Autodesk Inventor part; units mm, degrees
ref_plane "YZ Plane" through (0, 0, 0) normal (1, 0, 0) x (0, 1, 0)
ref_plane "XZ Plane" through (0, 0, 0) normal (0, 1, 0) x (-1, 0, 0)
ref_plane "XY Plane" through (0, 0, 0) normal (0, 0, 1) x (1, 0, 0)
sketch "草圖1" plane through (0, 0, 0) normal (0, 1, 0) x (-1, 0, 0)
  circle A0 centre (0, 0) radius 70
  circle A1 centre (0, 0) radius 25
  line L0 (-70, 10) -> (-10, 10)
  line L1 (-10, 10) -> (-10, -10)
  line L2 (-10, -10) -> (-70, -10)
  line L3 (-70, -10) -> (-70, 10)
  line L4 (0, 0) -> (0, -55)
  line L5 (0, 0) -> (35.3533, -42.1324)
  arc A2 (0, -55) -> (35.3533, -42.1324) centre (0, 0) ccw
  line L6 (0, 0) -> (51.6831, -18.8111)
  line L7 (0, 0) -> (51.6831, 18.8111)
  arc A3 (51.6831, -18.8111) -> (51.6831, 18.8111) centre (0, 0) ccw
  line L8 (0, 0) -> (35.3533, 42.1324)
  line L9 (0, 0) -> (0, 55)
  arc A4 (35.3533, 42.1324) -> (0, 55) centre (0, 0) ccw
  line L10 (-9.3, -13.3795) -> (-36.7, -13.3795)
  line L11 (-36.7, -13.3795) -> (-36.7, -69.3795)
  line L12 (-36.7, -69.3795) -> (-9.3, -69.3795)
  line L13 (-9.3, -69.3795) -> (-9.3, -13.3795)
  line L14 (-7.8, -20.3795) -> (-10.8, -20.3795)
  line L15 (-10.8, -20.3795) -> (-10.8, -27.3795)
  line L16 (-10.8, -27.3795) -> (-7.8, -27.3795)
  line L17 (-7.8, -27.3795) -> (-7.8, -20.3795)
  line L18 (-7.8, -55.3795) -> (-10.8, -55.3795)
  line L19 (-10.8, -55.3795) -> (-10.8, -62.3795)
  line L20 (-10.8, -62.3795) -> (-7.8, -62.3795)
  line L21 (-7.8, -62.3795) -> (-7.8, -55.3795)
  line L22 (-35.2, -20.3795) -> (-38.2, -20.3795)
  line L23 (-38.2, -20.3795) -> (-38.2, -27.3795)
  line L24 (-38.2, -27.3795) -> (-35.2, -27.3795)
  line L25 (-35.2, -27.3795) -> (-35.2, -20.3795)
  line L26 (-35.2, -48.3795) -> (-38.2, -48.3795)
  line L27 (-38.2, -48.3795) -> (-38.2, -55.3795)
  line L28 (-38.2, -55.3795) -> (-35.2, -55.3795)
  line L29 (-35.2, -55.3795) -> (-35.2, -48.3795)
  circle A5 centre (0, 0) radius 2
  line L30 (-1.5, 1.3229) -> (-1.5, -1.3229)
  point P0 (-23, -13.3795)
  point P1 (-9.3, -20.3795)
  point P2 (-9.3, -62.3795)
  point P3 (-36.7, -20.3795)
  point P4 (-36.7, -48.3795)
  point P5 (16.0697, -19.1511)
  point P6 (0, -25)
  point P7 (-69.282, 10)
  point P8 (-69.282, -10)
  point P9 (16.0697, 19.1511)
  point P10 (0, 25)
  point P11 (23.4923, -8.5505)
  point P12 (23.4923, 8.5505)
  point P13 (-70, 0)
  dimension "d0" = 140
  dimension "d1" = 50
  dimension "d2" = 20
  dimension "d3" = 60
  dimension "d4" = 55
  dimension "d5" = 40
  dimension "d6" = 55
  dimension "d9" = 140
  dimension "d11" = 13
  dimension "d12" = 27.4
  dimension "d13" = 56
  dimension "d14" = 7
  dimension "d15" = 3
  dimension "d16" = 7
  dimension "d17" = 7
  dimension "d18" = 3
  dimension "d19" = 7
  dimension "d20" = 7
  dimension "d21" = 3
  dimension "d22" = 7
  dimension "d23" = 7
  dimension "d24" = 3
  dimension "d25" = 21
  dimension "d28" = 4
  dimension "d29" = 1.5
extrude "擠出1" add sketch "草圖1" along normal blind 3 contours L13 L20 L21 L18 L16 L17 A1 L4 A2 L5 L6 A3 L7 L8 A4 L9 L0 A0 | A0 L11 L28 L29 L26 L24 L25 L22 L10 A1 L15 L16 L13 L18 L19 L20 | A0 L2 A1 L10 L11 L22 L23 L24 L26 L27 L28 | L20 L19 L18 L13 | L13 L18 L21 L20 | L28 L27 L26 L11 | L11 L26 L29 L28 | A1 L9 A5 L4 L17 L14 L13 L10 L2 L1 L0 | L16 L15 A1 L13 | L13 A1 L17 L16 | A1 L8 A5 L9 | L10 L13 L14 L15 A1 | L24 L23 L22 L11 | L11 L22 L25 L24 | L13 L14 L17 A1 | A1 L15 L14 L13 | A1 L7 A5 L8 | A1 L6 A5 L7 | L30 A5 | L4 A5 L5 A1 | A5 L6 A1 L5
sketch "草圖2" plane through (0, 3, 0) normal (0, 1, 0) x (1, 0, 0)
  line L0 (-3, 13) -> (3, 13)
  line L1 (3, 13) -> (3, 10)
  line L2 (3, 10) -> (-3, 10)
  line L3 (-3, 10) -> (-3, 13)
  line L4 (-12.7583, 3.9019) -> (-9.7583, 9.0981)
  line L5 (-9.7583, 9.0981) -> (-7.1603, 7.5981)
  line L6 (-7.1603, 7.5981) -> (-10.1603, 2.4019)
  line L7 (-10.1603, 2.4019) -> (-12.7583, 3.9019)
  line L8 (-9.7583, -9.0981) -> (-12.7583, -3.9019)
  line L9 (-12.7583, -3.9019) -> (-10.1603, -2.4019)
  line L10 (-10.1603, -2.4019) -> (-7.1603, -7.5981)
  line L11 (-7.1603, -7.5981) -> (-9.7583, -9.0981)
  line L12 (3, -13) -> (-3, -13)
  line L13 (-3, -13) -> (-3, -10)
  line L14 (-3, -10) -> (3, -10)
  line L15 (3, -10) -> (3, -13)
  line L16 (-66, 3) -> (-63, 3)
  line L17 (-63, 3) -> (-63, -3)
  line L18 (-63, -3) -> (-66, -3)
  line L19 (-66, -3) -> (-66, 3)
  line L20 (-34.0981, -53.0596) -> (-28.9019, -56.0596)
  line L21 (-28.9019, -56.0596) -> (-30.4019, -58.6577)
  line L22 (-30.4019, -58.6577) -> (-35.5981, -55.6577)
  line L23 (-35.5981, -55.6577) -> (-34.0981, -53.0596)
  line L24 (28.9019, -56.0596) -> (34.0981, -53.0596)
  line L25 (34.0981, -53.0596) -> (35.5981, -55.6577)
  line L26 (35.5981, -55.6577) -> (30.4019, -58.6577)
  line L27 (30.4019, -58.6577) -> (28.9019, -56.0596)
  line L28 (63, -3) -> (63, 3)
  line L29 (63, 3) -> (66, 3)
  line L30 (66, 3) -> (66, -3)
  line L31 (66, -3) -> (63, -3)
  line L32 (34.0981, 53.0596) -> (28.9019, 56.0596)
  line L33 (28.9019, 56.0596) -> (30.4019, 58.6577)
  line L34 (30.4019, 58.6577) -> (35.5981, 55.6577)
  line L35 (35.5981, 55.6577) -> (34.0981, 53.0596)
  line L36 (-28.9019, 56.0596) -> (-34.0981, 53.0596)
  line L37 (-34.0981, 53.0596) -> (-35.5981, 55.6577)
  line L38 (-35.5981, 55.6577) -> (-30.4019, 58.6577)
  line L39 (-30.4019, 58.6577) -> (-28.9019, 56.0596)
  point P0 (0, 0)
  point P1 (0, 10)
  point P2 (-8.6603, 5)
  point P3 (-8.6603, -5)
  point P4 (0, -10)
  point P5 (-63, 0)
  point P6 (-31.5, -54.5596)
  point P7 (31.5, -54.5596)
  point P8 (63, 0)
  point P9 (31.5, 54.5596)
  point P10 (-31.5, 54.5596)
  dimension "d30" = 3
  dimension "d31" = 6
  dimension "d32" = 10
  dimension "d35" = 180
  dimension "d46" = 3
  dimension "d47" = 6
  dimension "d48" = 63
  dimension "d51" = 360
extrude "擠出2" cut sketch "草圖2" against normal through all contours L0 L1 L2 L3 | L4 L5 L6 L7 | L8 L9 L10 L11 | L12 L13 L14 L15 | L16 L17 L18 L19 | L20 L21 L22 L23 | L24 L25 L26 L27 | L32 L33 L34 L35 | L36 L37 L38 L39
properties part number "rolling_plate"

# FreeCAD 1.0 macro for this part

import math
import FreeCAD as App
import Part
import Sketcher

V = App.Vector
Q = App.Units.Quantity


def add_polygon(sketch, points):
    """Adds a closed chain of lines whose ends are joined by coincident constraints."""
    first, n = sketch.GeometryCount, len(points)
    for a, b in zip(points, points[1:] + points[:1]):
        sketch.addGeometry(Part.LineSegment(App.Vector(*a, 0), App.Vector(*b, 0)), False)
    for i in range(n):
        sketch.addConstraint(Sketcher.Constraint("Coincident", first + i, 2, first + (i + 1) % n, 1))

doc = App.newDocument("Part")
body = doc.addObject("PartDesign::Body", "Body")

sketch1 = body.newObject("Sketcher::SketchObject", "Sketch")
sketch1.AttachmentSupport = (doc.getObject("XZ_Plane"), [""])
sketch1.MapMode = "FlatFace"
sketch1.addGeometry(Part.LineSegment(V(69.3, 10, 0), V(10, 10, 0)), False)
sketch1.addGeometry(Part.LineSegment(V(10, 10, 0), V(10, -10, 0)), False)
sketch1.addGeometry(Part.LineSegment(V(10, -10, 0), V(69.3, -10, 0)), False)
sketch1.addGeometry(Part.ArcOfCircle(Part.Circle(V(0, 0, 0), V(0, 0, 1), 70), math.radians(8), math.radians(352)), False)
sketch1.addGeometry(Part.LineSegment(V(0, -55, 0), V(0, -25, 0)), False)
sketch1.addGeometry(Part.ArcOfCircle(Part.Circle(V(0, 0, 0), V(0, 0, 1), 25), math.radians(-130), math.radians(-90)), False)
sketch1.addGeometry(Part.LineSegment(V(-16.1, -19.2, 0), V(-35.4, -42.1, 0)), False)
sketch1.addGeometry(Part.ArcOfCircle(Part.Circle(V(0, 0, 0), V(0, 0, 1), 55), math.radians(-130), math.radians(-90)), False)
sketch1.addGeometry(Part.LineSegment(V(-51.7, -18.8, 0), V(-23.5, -8.6, 0)), False)
sketch1.addGeometry(Part.ArcOfCircle(Part.Circle(V(0, 0, 0), V(0, 0, 1), 25), math.radians(160), math.radians(200)), False)
sketch1.addGeometry(Part.LineSegment(V(-23.5, 8.6, 0), V(-51.7, 18.8, 0)), False)
sketch1.addGeometry(Part.ArcOfCircle(Part.Circle(V(0, 0, 0), V(0, 0, 1), 55), math.radians(160), math.radians(200)), False)
sketch1.addGeometry(Part.LineSegment(V(-35.4, 42.1, 0), V(-16.1, 19.2, 0)), False)
sketch1.addGeometry(Part.ArcOfCircle(Part.Circle(V(0, 0, 0), V(0, 0, 1), 25), math.radians(90), math.radians(130)), False)
sketch1.addGeometry(Part.LineSegment(V(0, 25, 0), V(0, 55, 0)), False)
sketch1.addGeometry(Part.ArcOfCircle(Part.Circle(V(0, 0, 0), V(0, 0, 1), 55), math.radians(90), math.radians(130)), False)
sketch1.addGeometry(Part.ArcOfCircle(Part.Circle(V(0, 0, 0), V(0, 0, 1), 2), math.radians(41), math.radians(319)), False)
sketch1.addGeometry(Part.LineSegment(V(1.5, 1.3, 0), V(1.5, -1.3, 0)), False)
sketch1.addConstraint(Sketcher.Constraint("Coincident", 0, 2, 1, 1))
sketch1.addConstraint(Sketcher.Constraint("Coincident", 1, 2, 2, 1))
sketch1.addConstraint(Sketcher.Constraint("Coincident", 2, 2, 3, 2))
sketch1.addConstraint(Sketcher.Constraint("Coincident", 3, 1, 0, 1))
sketch1.addConstraint(Sketcher.Constraint("Coincident", 4, 2, 5, 2))
sketch1.addConstraint(Sketcher.Constraint("Coincident", 5, 1, 6, 1))
sketch1.addConstraint(Sketcher.Constraint("Coincident", 6, 2, 7, 1))
sketch1.addConstraint(Sketcher.Constraint("Coincident", 7, 2, 4, 1))
sketch1.addConstraint(Sketcher.Constraint("Coincident", 8, 2, 9, 2))
sketch1.addConstraint(Sketcher.Constraint("Coincident", 9, 1, 10, 1))
sketch1.addConstraint(Sketcher.Constraint("Coincident", 10, 2, 11, 1))
sketch1.addConstraint(Sketcher.Constraint("Coincident", 11, 2, 8, 1))
sketch1.addConstraint(Sketcher.Constraint("Coincident", 12, 2, 13, 2))
sketch1.addConstraint(Sketcher.Constraint("Coincident", 13, 1, 14, 1))
sketch1.addConstraint(Sketcher.Constraint("Coincident", 14, 2, 15, 1))
sketch1.addConstraint(Sketcher.Constraint("Coincident", 15, 2, 12, 1))
sketch1.addConstraint(Sketcher.Constraint("Coincident", 16, 1, 17, 1))
sketch1.addConstraint(Sketcher.Constraint("Coincident", 17, 2, 16, 2))
sketch1.addConstraint(Sketcher.Constraint("Horizontal", 0))
sketch1.addConstraint(Sketcher.Constraint("Vertical", 1))
sketch1.addConstraint(Sketcher.Constraint("Horizontal", 2))
sketch1.addConstraint(Sketcher.Constraint("Vertical", 4))
sketch1.addConstraint(Sketcher.Constraint("Vertical", 14))
sketch1.addConstraint(Sketcher.Constraint("Vertical", 17))
sketch1.addConstraint(Sketcher.Constraint("Coincident", 3, 3, -1, 1))
sketch1.addConstraint(Sketcher.Constraint("Coincident", 5, 3, -1, 1))
sketch1.addConstraint(Sketcher.Constraint("Coincident", 7, 3, -1, 1))
sketch1.addConstraint(Sketcher.Constraint("Coincident", 9, 3, -1, 1))
sketch1.addConstraint(Sketcher.Constraint("Coincident", 11, 3, -1, 1))
sketch1.addConstraint(Sketcher.Constraint("Coincident", 13, 3, -1, 1))
sketch1.addConstraint(Sketcher.Constraint("Coincident", 15, 3, -1, 1))
sketch1.addConstraint(Sketcher.Constraint("Coincident", 16, 3, -1, 1))
sketch1.addConstraint(Sketcher.Constraint("Equal", 5, 9))
sketch1.addConstraint(Sketcher.Constraint("Equal", 7, 11))
sketch1.addConstraint(Sketcher.Constraint("Equal", 9, 13))
sketch1.addConstraint(Sketcher.Constraint("Equal", 11, 15))
sketch1.addConstraint(Sketcher.Constraint("PointOnObject", 4, 2, -2))
sketch1.addConstraint(Sketcher.Constraint("PointOnObject", 13, 1, -2))
sketch1.addConstraint(Sketcher.Constraint("Vertical", 2, 2, 3, 1))
sketch1.addConstraint(Sketcher.Constraint("Vertical", 8, 2, 9, 1))
sketch1.addConstraint(Sketcher.Constraint("Vertical", 10, 2, 11, 2))
sketch1.addConstraint(Sketcher.Constraint("Vertical", 5, 1, 12, 2))
sketch1.addConstraint(Sketcher.Constraint("Vertical", 6, 2, 15, 2))
sketch1.addConstraint(Sketcher.Constraint("Radius", 3, 70.0))
sketch1.addConstraint(Sketcher.Constraint("Radius", 5, 25.0))
sketch1.addConstraint(Sketcher.Constraint("Radius", 7, 55.0))
sketch1.addConstraint(Sketcher.Constraint("Radius", 16, 2.0))
sketch1.addConstraint(Sketcher.Constraint("DistanceY", 1, 2, 1, 1, 20.0))
sketch1.addConstraint(Sketcher.Constraint("Angle", 8, Q("20 deg")))
sketch1.addConstraint(Sketcher.Constraint("Angle", 12, Q("-50 deg")))
sketch1.addConstraint(Sketcher.Constraint("DistanceX", -1, 1, 16, 1, 1.5))
sketch1.addConstraint(Sketcher.Constraint("DistanceX", -1, 1, 0, 2, 10.0))
sketch1.addConstraint(Sketcher.Constraint("DistanceY", 5, 1, 11, 2, 0.34))
sketch1.addConstraint(Sketcher.Constraint("DistanceY", 5, 1, -1, 1, 19.151))
pad1 = body.newObject("PartDesign::Pad", "Pad")
pad1.Profile = sketch1
pad1.Length = 3
pad1.Reversed = True

sketch2 = body.newObject("Sketcher::SketchObject", "Sketch001")
sketch2.AttachmentSupport = (doc.getObject("XZ_Plane"), [""])
sketch2.MapMode = "FlatFace"
sketch2.AttachmentOffset = App.Placement(V(0, 0, -3), App.Rotation())
add_polygon(sketch2, [(3, -13), (-3, -13), (-3, -10), (3, -10)])
add_polygon(sketch2, [(-9.8, -9.1), (-12.8, -3.9), (-10.2, -2.4), (-7.2, -7.6)])
add_polygon(sketch2, [(-12.8, 3.9), (-9.8, 9.1), (-7.2, 7.6), (-10.2, 2.4)])
add_polygon(sketch2, [(-3, 13), (3, 13), (3, 10), (-3, 10)])
add_polygon(sketch2, [(-63, -3), (-66, -3), (-66, 3), (-63, 3)])
add_polygon(sketch2, [(-28.9, 56.1), (-34.1, 53.1), (-35.6, 55.7), (-30.4, 58.7)])
add_polygon(sketch2, [(34.1, 53.1), (28.9, 56.1), (30.4, 58.7), (35.6, 55.7)])
add_polygon(sketch2, [(28.9, -56.1), (34.1, -53.1), (35.6, -55.7), (30.4, -58.7)])
add_polygon(sketch2, [(-34.1, -53.1), (-28.9, -56.1), (-30.4, -58.7), (-35.6, -55.7)])
sketch2.addConstraint(Sketcher.Constraint("Horizontal", 0))
sketch2.addConstraint(Sketcher.Constraint("Vertical", 1))
sketch2.addConstraint(Sketcher.Constraint("Horizontal", 2))
sketch2.addConstraint(Sketcher.Constraint("Vertical", 3))
sketch2.addConstraint(Sketcher.Constraint("Horizontal", 12))
sketch2.addConstraint(Sketcher.Constraint("Vertical", 13))
sketch2.addConstraint(Sketcher.Constraint("Horizontal", 14))
sketch2.addConstraint(Sketcher.Constraint("Vertical", 15))
sketch2.addConstraint(Sketcher.Constraint("Horizontal", 16))
sketch2.addConstraint(Sketcher.Constraint("Vertical", 17))
sketch2.addConstraint(Sketcher.Constraint("Horizontal", 18))
sketch2.addConstraint(Sketcher.Constraint("Vertical", 19))
sketch2.addConstraint(Sketcher.Constraint("Symmetric", 0, 2, 12, 2, -1, 1))
sketch2.addConstraint(Sketcher.Constraint("Symmetric", 2, 2, 14, 2, -1, 1))
sketch2.addConstraint(Sketcher.Constraint("Symmetric", 20, 2, 28, 2, -1, 1))
sketch2.addConstraint(Sketcher.Constraint("Symmetric", 21, 2, 29, 2, -1, 1))
sketch2.addConstraint(Sketcher.Constraint("Symmetric", 22, 2, 30, 2, -1, 1))
sketch2.addConstraint(Sketcher.Constraint("Symmetric", 23, 2, 31, 2, -1, 1))
sketch2.addConstraint(Sketcher.Constraint("Symmetric", 24, 2, 32, 2, -1, 1))
sketch2.addConstraint(Sketcher.Constraint("Symmetric", 25, 2, 33, 2, -1, 1))
sketch2.addConstraint(Sketcher.Constraint("Symmetric", 26, 2, 34, 2, -1, 1))
sketch2.addConstraint(Sketcher.Constraint("Symmetric", 27, 2, 35, 2, -1, 1))
sketch2.addConstraint(Sketcher.Constraint("Symmetric", 23, 2, 24, 2, -2))
sketch2.addConstraint(Sketcher.Constraint("Symmetric", 22, 2, 25, 2, -2))
sketch2.addConstraint(Sketcher.Constraint("Symmetric", 21, 2, 26, 2, -2))
sketch2.addConstraint(Sketcher.Constraint("Symmetric", 20, 2, 27, 2, -2))
sketch2.addConstraint(Sketcher.Constraint("Symmetric", 7, 2, 8, 2, -1))
sketch2.addConstraint(Sketcher.Constraint("Symmetric", 6, 2, 9, 2, -1))
sketch2.addConstraint(Sketcher.Constraint("Symmetric", 5, 2, 10, 2, -1))
sketch2.addConstraint(Sketcher.Constraint("Symmetric", 4, 2, 11, 2, -1))
sketch2.addConstraint(Sketcher.Constraint("Perpendicular", 4, 5))
sketch2.addConstraint(Sketcher.Constraint("Perpendicular", 5, 6))
sketch2.addConstraint(Sketcher.Constraint("Perpendicular", 6, 7))
sketch2.addConstraint(Sketcher.Constraint("Parallel", 7, 20))
sketch2.addConstraint(Sketcher.Constraint("Perpendicular", 20, 21))
sketch2.addConstraint(Sketcher.Constraint("Perpendicular", 21, 22))
sketch2.addConstraint(Sketcher.Constraint("Perpendicular", 22, 23))
sketch2.addConstraint(Sketcher.Constraint("Vertical", 3, 2, 12, 2))
sketch2.addConstraint(Sketcher.Constraint("Equal", 18, 1))
sketch2.addConstraint(Sketcher.Constraint("Equal", 14, 17))
sketch2.addConstraint(Sketcher.Constraint("Equal", 10, 20))
sketch2.addConstraint(Sketcher.Constraint("Equal", 11, 21))
sketch2.addConstraint(Sketcher.Constraint("DistanceX", 0, 2, 0, 1, 6.0))
sketch2.addConstraint(Sketcher.Constraint("DistanceX", 16, 2, 16, 1, 3.0))
sketch2.addConstraint(Sketcher.Constraint("Distance", 4, 6.0))
sketch2.addConstraint(Sketcher.Constraint("Distance", 5, 3.0))
sketch2.addConstraint(Sketcher.Constraint("DistanceY", 1, 2, -1, 1, 10.0))
sketch2.addConstraint(Sketcher.Constraint("DistanceY", 16, 2, -1, 1, 3.0))
sketch2.addConstraint(Sketcher.Constraint("DistanceX", 18, 2, -1, 1, 63.0))
sketch2.addConstraint(Sketcher.Constraint("DistanceX", 5, 2, 6, 2, 3.0))
sketch2.addConstraint(Sketcher.Constraint("DistanceY", 5, 2, 9, 2, 10.0))
sketch2.addConstraint(Sketcher.Constraint("DistanceX", 20, 2, -1, 1, 34.098))
sketch2.addConstraint(Sketcher.Constraint("DistanceX", 4, 2, -1, 1, 12.7583))
sketch2.addConstraint(Sketcher.Constraint("DistanceY", -1, 1, 20, 2, 53.0596))
pocket1 = body.newObject("PartDesign::Pocket", "Pocket")
pocket1.Profile = sketch2
pocket1.Type = "ThroughAll"
pocket1.Reversed = True

doc.recompute()
